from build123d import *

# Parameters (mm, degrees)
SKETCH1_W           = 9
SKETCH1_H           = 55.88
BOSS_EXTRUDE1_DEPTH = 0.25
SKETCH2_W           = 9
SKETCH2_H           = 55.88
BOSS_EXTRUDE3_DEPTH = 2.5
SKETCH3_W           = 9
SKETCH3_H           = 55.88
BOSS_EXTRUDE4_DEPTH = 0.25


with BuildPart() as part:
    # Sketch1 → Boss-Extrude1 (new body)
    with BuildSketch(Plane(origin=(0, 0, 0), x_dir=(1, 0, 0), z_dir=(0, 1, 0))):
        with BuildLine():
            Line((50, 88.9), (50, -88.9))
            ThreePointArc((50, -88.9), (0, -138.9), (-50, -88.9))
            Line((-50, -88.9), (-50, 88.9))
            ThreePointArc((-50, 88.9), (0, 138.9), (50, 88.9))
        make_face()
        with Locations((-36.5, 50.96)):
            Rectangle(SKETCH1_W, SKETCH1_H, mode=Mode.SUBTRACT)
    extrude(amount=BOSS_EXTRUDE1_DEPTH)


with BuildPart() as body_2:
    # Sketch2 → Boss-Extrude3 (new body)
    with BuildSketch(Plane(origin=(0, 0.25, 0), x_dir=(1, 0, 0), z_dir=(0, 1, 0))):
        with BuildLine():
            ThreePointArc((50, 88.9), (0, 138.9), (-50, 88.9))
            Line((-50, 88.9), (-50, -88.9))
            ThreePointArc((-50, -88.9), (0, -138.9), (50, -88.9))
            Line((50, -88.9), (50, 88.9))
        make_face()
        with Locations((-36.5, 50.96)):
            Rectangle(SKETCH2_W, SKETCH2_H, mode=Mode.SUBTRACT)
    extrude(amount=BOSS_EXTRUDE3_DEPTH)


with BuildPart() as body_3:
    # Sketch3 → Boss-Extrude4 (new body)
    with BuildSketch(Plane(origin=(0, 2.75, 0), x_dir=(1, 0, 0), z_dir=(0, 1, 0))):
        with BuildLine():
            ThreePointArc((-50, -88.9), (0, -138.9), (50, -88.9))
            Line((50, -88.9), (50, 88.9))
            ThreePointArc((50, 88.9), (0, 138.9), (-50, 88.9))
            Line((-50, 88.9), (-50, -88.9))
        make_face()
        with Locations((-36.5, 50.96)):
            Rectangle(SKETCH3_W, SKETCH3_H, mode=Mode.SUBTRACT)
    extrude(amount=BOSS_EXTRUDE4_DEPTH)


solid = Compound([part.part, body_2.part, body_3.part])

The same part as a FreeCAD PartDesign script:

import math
import FreeCAD as App
import Part
import Sketcher


def add_polygon(sketch, points):
    """Adds a closed chain of lines whose ends are joined by coincident constraints."""
    first, n = sketch.GeometryCount, len(points)
    for a, b in zip(points, points[1:] + points[:1]):
        sketch.addGeometry(Part.LineSegment(App.Vector(*a, 0), App.Vector(*b, 0)), False)
    for i in range(n):
        sketch.addConstraint(Sketcher.Constraint("Coincident", first + i, 2, first + (i + 1) % n, 1))

doc = App.newDocument("Part")
params = doc.addObject("Spreadsheet::Sheet", "Params")
for row, (alias, value) in enumerate([
    ("sketch1_radius", "50 mm"),
    ("sketch1_width", "9 mm"),
    ("sketch1_height", "177.8 mm"),
    ("sketch1_height2", "55.88 mm"),
    ("pad1_length", "0.25 mm"),
    ("sketch2_radius", "50 mm"),
    ("sketch2_width", "9 mm"),
    ("sketch2_height", "177.8 mm"),
    ("sketch2_height2", "55.88 mm"),
    ("pad2_length", "2.5 mm"),
    ("sketch3_radius", "50 mm"),
    ("sketch3_width", "9 mm"),
    ("sketch3_height", "177.8 mm"),
    ("sketch3_height2", "55.88 mm"),
    ("pad3_length", "0.25 mm"),
], start=1):
    params.set(f"A{row}", alias)
    params.set(f"B{row}", "=" + value)
    params.setAlias(f"B{row}", alias)

body = doc.addObject("PartDesign::Body", "Body")

sketch1 = body.newObject("Sketcher::SketchObject", "Sketch")
sketch1.AttachmentSupport = (doc.getObject("XZ_Plane"), [""])
sketch1.MapMode = "FlatFace"
sketch1.addGeometry(Part.LineSegment(App.Vector(50, 89, 0), App.Vector(50, -89, 0)), False)
sketch1.addGeometry(Part.ArcOfCircle(Part.Circle(App.Vector(0, -89, 0), App.Vector(0, 0, 1), 50), math.radians(180), math.radians(360)), False)
sketch1.addGeometry(Part.LineSegment(App.Vector(-50, -89, 0), App.Vector(-50, 89, 0)), False)
sketch1.addGeometry(Part.ArcOfCircle(Part.Circle(App.Vector(0, 89, 0), App.Vector(0, 0, 1), 50), math.radians(0), math.radians(180)), False)
add_polygon(sketch1, [(-41, -23), (-41, -79), (-32, -79), (-32, -23)])
sketch1.addConstraint(Sketcher.Constraint("Tangent", 0, 2, 1, 2))
sketch1.addConstraint(Sketcher.Constraint("Tangent", 1, 1, 2, 1))
sketch1.addConstraint(Sketcher.Constraint("Tangent", 2, 2, 3, 2))
sketch1.addConstraint(Sketcher.Constraint("Tangent", 3, 1, 0, 1))
sketch1.addConstraint(Sketcher.Constraint("Vertical", 0))
sketch1.addConstraint(Sketcher.Constraint("Vertical", 2))
sketch1.addConstraint(Sketcher.Constraint("Vertical", 4))
sketch1.addConstraint(Sketcher.Constraint("Horizontal", 5))
sketch1.addConstraint(Sketcher.Constraint("Vertical", 6))
sketch1.addConstraint(Sketcher.Constraint("Horizontal", 7))
sketch1.addConstraint(Sketcher.Constraint("Symmetric", 1, 3, 3, 3, -1, 1))
sketch1.addConstraint(Sketcher.Constraint("Radius", 1, 50.0))
sketch1.addConstraint(Sketcher.Constraint("DistanceX", 5, 1, 5, 2, 9.0))
sketch1.addConstraint(Sketcher.Constraint("DistanceY", 0, 2, 0, 1, 177.8))
sketch1.addConstraint(Sketcher.Constraint("DistanceX", 4, 2, -1, 1, 41.0))
sketch1.addConstraint(Sketcher.Constraint("DistanceY", 1, 1, 4, 2, 10.0))
sketch1.addConstraint(Sketcher.Constraint("DistanceY", 4, 2, 4, 1, 55.88))
sketch1.setExpression("Constraints[15]", "Params.sketch1_radius")
sketch1.setExpression("Constraints[16]", "Params.sketch1_width")
sketch1.setExpression("Constraints[17]", "Params.sketch1_height")
sketch1.setExpression("Constraints[20]", "Params.sketch1_height2")
pad1 = body.newObject("PartDesign::Pad", "Pad")
pad1.Profile = sketch1
pad1.setExpression("Length", "Params.pad1_length")
pad1.Reversed = True
body2 = doc.addObject("PartDesign::Body", "Body001")

sketch2 = body2.newObject("Sketcher::SketchObject", "Sketch001")
sketch2.AttachmentSupport = (doc.getObject("XZ_Plane001"), [""])
sketch2.MapMode = "FlatFace"
sketch2.AttachmentOffset = App.Placement(App.Vector(0, 0, -0.25), App.Rotation())
sketch2.addGeometry(Part.ArcOfCircle(Part.Circle(App.Vector(0, -89, 0), App.Vector(0, 0, 1), 50), math.radians(180), math.radians(360)), False)
sketch2.addGeometry(Part.LineSegment(App.Vector(-50, -89, 0), App.Vector(-50, 89, 0)), False)
sketch2.addGeometry(Part.ArcOfCircle(Part.Circle(App.Vector(0, 89, 0), App.Vector(0, 0, 1), 50), math.radians(0), math.radians(180)), False)
sketch2.addGeometry(Part.LineSegment(App.Vector(50, 89, 0), App.Vector(50, -89, 0)), False)
add_polygon(sketch2, [(-32, -23), (-41, -23), (-41, -79), (-32, -79)])
sketch2.addConstraint(Sketcher.Constraint("Tangent", 0, 1, 1, 1))
sketch2.addConstraint(Sketcher.Constraint("Tangent", 1, 2, 2, 2))
sketch2.addConstraint(Sketcher.Constraint("Tangent", 2, 1, 3, 1))
sketch2.addConstraint(Sketcher.Constraint("Tangent", 3, 2, 0, 2))
sketch2.addConstraint(Sketcher.Constraint("Vertical", 1))
sketch2.addConstraint(Sketcher.Constraint("Vertical", 3))
sketch2.addConstraint(Sketcher.Constraint("Horizontal", 4))
sketch2.addConstraint(Sketcher.Constraint("Vertical", 5))
sketch2.addConstraint(Sketcher.Constraint("Horizontal", 6))
sketch2.addConstraint(Sketcher.Constraint("Vertical", 7))
sketch2.addConstraint(Sketcher.Constraint("Symmetric", 0, 3, 2, 3, -1, 1))
sketch2.addConstraint(Sketcher.Constraint("Radius", 0, 50.0))
sketch2.addConstraint(Sketcher.Constraint("DistanceX", 4, 2, 4, 1, 9.0))
sketch2.addConstraint(Sketcher.Constraint("DistanceY", 1, 1, 1, 2, 177.8))
sketch2.addConstraint(Sketcher.Constraint("DistanceX", 4, 2, -1, 1, 41.0))
sketch2.addConstraint(Sketcher.Constraint("DistanceY", 0, 1, 5, 2, 10.0))
sketch2.addConstraint(Sketcher.Constraint("DistanceY", 5, 2, 5, 1, 55.88))
sketch2.setExpression("Constraints[15]", "Params.sketch2_radius")
sketch2.setExpression("Constraints[16]", "Params.sketch2_width")
sketch2.setExpression("Constraints[17]", "Params.sketch2_height")
sketch2.setExpression("Constraints[20]", "Params.sketch2_height2")
pad2 = body2.newObject("PartDesign::Pad", "Pad001")
pad2.Profile = sketch2
pad2.setExpression("Length", "Params.pad2_length")
pad2.Reversed = True
body3 = doc.addObject("PartDesign::Body", "Body002")

sketch3 = body3.newObject("Sketcher::SketchObject", "Sketch002")
sketch3.AttachmentSupport = (doc.getObject("XZ_Plane002"), [""])
sketch3.MapMode = "FlatFace"
sketch3.AttachmentOffset = App.Placement(App.Vector(0, 0, -2.75), App.Rotation())
sketch3.addGeometry(Part.ArcOfCircle(Part.Circle(App.Vector(0, 89, 0), App.Vector(0, 0, 1), 50), math.radians(0), math.radians(180)), False)
sketch3.addGeometry(Part.LineSegment(App.Vector(50, 89, 0), App.Vector(50, -89, 0)), False)
sketch3.addGeometry(Part.ArcOfCircle(Part.Circle(App.Vector(0, -89, 0), App.Vector(0, 0, 1), 50), math.radians(180), math.radians(360)), False)
sketch3.addGeometry(Part.LineSegment(App.Vector(-50, -89, 0), App.Vector(-50, 89, 0)), False)
add_polygon(sketch3, [(-32, -23), (-41, -23), (-41, -79), (-32, -79)])
sketch3.addConstraint(Sketcher.Constraint("Tangent", 0, 1, 1, 1))
sketch3.addConstraint(Sketcher.Constraint("Tangent", 1, 2, 2, 2))
sketch3.addConstraint(Sketcher.Constraint("Tangent", 2, 1, 3, 1))
sketch3.addConstraint(Sketcher.Constraint("Tangent", 3, 2, 0, 2))
sketch3.addConstraint(Sketcher.Constraint("Vertical", 1))
sketch3.addConstraint(Sketcher.Constraint("Vertical", 3))
sketch3.addConstraint(Sketcher.Constraint("Horizontal", 4))
sketch3.addConstraint(Sketcher.Constraint("Vertical", 5))
sketch3.addConstraint(Sketcher.Constraint("Horizontal", 6))
sketch3.addConstraint(Sketcher.Constraint("Vertical", 7))
sketch3.addConstraint(Sketcher.Constraint("Symmetric", 0, 3, 2, 3, -1, 1))
sketch3.addConstraint(Sketcher.Constraint("Radius", 0, 50.0))
sketch3.addConstraint(Sketcher.Constraint("DistanceX", 4, 2, 4, 1, 9.0))
sketch3.addConstraint(Sketcher.Constraint("DistanceY", 1, 2, 1, 1, 177.8))
sketch3.addConstraint(Sketcher.Constraint("DistanceX", 4, 2, -1, 1, 41.0))
sketch3.addConstraint(Sketcher.Constraint("DistanceY", 2, 1, 5, 2, 10.0))
sketch3.addConstraint(Sketcher.Constraint("DistanceY", 5, 2, 5, 1, 55.88))
sketch3.setExpression("Constraints[15]", "Params.sketch3_radius")
sketch3.setExpression("Constraints[16]", "Params.sketch3_width")
sketch3.setExpression("Constraints[17]", "Params.sketch3_height")
sketch3.setExpression("Constraints[20]", "Params.sketch3_height2")
pad3 = body3.newObject("PartDesign::Pad", "Pad002")
pad3.Profile = sketch3
pad3.setExpression("Length", "Params.pad3_length")
pad3.Reversed = True

doc.recompute()
